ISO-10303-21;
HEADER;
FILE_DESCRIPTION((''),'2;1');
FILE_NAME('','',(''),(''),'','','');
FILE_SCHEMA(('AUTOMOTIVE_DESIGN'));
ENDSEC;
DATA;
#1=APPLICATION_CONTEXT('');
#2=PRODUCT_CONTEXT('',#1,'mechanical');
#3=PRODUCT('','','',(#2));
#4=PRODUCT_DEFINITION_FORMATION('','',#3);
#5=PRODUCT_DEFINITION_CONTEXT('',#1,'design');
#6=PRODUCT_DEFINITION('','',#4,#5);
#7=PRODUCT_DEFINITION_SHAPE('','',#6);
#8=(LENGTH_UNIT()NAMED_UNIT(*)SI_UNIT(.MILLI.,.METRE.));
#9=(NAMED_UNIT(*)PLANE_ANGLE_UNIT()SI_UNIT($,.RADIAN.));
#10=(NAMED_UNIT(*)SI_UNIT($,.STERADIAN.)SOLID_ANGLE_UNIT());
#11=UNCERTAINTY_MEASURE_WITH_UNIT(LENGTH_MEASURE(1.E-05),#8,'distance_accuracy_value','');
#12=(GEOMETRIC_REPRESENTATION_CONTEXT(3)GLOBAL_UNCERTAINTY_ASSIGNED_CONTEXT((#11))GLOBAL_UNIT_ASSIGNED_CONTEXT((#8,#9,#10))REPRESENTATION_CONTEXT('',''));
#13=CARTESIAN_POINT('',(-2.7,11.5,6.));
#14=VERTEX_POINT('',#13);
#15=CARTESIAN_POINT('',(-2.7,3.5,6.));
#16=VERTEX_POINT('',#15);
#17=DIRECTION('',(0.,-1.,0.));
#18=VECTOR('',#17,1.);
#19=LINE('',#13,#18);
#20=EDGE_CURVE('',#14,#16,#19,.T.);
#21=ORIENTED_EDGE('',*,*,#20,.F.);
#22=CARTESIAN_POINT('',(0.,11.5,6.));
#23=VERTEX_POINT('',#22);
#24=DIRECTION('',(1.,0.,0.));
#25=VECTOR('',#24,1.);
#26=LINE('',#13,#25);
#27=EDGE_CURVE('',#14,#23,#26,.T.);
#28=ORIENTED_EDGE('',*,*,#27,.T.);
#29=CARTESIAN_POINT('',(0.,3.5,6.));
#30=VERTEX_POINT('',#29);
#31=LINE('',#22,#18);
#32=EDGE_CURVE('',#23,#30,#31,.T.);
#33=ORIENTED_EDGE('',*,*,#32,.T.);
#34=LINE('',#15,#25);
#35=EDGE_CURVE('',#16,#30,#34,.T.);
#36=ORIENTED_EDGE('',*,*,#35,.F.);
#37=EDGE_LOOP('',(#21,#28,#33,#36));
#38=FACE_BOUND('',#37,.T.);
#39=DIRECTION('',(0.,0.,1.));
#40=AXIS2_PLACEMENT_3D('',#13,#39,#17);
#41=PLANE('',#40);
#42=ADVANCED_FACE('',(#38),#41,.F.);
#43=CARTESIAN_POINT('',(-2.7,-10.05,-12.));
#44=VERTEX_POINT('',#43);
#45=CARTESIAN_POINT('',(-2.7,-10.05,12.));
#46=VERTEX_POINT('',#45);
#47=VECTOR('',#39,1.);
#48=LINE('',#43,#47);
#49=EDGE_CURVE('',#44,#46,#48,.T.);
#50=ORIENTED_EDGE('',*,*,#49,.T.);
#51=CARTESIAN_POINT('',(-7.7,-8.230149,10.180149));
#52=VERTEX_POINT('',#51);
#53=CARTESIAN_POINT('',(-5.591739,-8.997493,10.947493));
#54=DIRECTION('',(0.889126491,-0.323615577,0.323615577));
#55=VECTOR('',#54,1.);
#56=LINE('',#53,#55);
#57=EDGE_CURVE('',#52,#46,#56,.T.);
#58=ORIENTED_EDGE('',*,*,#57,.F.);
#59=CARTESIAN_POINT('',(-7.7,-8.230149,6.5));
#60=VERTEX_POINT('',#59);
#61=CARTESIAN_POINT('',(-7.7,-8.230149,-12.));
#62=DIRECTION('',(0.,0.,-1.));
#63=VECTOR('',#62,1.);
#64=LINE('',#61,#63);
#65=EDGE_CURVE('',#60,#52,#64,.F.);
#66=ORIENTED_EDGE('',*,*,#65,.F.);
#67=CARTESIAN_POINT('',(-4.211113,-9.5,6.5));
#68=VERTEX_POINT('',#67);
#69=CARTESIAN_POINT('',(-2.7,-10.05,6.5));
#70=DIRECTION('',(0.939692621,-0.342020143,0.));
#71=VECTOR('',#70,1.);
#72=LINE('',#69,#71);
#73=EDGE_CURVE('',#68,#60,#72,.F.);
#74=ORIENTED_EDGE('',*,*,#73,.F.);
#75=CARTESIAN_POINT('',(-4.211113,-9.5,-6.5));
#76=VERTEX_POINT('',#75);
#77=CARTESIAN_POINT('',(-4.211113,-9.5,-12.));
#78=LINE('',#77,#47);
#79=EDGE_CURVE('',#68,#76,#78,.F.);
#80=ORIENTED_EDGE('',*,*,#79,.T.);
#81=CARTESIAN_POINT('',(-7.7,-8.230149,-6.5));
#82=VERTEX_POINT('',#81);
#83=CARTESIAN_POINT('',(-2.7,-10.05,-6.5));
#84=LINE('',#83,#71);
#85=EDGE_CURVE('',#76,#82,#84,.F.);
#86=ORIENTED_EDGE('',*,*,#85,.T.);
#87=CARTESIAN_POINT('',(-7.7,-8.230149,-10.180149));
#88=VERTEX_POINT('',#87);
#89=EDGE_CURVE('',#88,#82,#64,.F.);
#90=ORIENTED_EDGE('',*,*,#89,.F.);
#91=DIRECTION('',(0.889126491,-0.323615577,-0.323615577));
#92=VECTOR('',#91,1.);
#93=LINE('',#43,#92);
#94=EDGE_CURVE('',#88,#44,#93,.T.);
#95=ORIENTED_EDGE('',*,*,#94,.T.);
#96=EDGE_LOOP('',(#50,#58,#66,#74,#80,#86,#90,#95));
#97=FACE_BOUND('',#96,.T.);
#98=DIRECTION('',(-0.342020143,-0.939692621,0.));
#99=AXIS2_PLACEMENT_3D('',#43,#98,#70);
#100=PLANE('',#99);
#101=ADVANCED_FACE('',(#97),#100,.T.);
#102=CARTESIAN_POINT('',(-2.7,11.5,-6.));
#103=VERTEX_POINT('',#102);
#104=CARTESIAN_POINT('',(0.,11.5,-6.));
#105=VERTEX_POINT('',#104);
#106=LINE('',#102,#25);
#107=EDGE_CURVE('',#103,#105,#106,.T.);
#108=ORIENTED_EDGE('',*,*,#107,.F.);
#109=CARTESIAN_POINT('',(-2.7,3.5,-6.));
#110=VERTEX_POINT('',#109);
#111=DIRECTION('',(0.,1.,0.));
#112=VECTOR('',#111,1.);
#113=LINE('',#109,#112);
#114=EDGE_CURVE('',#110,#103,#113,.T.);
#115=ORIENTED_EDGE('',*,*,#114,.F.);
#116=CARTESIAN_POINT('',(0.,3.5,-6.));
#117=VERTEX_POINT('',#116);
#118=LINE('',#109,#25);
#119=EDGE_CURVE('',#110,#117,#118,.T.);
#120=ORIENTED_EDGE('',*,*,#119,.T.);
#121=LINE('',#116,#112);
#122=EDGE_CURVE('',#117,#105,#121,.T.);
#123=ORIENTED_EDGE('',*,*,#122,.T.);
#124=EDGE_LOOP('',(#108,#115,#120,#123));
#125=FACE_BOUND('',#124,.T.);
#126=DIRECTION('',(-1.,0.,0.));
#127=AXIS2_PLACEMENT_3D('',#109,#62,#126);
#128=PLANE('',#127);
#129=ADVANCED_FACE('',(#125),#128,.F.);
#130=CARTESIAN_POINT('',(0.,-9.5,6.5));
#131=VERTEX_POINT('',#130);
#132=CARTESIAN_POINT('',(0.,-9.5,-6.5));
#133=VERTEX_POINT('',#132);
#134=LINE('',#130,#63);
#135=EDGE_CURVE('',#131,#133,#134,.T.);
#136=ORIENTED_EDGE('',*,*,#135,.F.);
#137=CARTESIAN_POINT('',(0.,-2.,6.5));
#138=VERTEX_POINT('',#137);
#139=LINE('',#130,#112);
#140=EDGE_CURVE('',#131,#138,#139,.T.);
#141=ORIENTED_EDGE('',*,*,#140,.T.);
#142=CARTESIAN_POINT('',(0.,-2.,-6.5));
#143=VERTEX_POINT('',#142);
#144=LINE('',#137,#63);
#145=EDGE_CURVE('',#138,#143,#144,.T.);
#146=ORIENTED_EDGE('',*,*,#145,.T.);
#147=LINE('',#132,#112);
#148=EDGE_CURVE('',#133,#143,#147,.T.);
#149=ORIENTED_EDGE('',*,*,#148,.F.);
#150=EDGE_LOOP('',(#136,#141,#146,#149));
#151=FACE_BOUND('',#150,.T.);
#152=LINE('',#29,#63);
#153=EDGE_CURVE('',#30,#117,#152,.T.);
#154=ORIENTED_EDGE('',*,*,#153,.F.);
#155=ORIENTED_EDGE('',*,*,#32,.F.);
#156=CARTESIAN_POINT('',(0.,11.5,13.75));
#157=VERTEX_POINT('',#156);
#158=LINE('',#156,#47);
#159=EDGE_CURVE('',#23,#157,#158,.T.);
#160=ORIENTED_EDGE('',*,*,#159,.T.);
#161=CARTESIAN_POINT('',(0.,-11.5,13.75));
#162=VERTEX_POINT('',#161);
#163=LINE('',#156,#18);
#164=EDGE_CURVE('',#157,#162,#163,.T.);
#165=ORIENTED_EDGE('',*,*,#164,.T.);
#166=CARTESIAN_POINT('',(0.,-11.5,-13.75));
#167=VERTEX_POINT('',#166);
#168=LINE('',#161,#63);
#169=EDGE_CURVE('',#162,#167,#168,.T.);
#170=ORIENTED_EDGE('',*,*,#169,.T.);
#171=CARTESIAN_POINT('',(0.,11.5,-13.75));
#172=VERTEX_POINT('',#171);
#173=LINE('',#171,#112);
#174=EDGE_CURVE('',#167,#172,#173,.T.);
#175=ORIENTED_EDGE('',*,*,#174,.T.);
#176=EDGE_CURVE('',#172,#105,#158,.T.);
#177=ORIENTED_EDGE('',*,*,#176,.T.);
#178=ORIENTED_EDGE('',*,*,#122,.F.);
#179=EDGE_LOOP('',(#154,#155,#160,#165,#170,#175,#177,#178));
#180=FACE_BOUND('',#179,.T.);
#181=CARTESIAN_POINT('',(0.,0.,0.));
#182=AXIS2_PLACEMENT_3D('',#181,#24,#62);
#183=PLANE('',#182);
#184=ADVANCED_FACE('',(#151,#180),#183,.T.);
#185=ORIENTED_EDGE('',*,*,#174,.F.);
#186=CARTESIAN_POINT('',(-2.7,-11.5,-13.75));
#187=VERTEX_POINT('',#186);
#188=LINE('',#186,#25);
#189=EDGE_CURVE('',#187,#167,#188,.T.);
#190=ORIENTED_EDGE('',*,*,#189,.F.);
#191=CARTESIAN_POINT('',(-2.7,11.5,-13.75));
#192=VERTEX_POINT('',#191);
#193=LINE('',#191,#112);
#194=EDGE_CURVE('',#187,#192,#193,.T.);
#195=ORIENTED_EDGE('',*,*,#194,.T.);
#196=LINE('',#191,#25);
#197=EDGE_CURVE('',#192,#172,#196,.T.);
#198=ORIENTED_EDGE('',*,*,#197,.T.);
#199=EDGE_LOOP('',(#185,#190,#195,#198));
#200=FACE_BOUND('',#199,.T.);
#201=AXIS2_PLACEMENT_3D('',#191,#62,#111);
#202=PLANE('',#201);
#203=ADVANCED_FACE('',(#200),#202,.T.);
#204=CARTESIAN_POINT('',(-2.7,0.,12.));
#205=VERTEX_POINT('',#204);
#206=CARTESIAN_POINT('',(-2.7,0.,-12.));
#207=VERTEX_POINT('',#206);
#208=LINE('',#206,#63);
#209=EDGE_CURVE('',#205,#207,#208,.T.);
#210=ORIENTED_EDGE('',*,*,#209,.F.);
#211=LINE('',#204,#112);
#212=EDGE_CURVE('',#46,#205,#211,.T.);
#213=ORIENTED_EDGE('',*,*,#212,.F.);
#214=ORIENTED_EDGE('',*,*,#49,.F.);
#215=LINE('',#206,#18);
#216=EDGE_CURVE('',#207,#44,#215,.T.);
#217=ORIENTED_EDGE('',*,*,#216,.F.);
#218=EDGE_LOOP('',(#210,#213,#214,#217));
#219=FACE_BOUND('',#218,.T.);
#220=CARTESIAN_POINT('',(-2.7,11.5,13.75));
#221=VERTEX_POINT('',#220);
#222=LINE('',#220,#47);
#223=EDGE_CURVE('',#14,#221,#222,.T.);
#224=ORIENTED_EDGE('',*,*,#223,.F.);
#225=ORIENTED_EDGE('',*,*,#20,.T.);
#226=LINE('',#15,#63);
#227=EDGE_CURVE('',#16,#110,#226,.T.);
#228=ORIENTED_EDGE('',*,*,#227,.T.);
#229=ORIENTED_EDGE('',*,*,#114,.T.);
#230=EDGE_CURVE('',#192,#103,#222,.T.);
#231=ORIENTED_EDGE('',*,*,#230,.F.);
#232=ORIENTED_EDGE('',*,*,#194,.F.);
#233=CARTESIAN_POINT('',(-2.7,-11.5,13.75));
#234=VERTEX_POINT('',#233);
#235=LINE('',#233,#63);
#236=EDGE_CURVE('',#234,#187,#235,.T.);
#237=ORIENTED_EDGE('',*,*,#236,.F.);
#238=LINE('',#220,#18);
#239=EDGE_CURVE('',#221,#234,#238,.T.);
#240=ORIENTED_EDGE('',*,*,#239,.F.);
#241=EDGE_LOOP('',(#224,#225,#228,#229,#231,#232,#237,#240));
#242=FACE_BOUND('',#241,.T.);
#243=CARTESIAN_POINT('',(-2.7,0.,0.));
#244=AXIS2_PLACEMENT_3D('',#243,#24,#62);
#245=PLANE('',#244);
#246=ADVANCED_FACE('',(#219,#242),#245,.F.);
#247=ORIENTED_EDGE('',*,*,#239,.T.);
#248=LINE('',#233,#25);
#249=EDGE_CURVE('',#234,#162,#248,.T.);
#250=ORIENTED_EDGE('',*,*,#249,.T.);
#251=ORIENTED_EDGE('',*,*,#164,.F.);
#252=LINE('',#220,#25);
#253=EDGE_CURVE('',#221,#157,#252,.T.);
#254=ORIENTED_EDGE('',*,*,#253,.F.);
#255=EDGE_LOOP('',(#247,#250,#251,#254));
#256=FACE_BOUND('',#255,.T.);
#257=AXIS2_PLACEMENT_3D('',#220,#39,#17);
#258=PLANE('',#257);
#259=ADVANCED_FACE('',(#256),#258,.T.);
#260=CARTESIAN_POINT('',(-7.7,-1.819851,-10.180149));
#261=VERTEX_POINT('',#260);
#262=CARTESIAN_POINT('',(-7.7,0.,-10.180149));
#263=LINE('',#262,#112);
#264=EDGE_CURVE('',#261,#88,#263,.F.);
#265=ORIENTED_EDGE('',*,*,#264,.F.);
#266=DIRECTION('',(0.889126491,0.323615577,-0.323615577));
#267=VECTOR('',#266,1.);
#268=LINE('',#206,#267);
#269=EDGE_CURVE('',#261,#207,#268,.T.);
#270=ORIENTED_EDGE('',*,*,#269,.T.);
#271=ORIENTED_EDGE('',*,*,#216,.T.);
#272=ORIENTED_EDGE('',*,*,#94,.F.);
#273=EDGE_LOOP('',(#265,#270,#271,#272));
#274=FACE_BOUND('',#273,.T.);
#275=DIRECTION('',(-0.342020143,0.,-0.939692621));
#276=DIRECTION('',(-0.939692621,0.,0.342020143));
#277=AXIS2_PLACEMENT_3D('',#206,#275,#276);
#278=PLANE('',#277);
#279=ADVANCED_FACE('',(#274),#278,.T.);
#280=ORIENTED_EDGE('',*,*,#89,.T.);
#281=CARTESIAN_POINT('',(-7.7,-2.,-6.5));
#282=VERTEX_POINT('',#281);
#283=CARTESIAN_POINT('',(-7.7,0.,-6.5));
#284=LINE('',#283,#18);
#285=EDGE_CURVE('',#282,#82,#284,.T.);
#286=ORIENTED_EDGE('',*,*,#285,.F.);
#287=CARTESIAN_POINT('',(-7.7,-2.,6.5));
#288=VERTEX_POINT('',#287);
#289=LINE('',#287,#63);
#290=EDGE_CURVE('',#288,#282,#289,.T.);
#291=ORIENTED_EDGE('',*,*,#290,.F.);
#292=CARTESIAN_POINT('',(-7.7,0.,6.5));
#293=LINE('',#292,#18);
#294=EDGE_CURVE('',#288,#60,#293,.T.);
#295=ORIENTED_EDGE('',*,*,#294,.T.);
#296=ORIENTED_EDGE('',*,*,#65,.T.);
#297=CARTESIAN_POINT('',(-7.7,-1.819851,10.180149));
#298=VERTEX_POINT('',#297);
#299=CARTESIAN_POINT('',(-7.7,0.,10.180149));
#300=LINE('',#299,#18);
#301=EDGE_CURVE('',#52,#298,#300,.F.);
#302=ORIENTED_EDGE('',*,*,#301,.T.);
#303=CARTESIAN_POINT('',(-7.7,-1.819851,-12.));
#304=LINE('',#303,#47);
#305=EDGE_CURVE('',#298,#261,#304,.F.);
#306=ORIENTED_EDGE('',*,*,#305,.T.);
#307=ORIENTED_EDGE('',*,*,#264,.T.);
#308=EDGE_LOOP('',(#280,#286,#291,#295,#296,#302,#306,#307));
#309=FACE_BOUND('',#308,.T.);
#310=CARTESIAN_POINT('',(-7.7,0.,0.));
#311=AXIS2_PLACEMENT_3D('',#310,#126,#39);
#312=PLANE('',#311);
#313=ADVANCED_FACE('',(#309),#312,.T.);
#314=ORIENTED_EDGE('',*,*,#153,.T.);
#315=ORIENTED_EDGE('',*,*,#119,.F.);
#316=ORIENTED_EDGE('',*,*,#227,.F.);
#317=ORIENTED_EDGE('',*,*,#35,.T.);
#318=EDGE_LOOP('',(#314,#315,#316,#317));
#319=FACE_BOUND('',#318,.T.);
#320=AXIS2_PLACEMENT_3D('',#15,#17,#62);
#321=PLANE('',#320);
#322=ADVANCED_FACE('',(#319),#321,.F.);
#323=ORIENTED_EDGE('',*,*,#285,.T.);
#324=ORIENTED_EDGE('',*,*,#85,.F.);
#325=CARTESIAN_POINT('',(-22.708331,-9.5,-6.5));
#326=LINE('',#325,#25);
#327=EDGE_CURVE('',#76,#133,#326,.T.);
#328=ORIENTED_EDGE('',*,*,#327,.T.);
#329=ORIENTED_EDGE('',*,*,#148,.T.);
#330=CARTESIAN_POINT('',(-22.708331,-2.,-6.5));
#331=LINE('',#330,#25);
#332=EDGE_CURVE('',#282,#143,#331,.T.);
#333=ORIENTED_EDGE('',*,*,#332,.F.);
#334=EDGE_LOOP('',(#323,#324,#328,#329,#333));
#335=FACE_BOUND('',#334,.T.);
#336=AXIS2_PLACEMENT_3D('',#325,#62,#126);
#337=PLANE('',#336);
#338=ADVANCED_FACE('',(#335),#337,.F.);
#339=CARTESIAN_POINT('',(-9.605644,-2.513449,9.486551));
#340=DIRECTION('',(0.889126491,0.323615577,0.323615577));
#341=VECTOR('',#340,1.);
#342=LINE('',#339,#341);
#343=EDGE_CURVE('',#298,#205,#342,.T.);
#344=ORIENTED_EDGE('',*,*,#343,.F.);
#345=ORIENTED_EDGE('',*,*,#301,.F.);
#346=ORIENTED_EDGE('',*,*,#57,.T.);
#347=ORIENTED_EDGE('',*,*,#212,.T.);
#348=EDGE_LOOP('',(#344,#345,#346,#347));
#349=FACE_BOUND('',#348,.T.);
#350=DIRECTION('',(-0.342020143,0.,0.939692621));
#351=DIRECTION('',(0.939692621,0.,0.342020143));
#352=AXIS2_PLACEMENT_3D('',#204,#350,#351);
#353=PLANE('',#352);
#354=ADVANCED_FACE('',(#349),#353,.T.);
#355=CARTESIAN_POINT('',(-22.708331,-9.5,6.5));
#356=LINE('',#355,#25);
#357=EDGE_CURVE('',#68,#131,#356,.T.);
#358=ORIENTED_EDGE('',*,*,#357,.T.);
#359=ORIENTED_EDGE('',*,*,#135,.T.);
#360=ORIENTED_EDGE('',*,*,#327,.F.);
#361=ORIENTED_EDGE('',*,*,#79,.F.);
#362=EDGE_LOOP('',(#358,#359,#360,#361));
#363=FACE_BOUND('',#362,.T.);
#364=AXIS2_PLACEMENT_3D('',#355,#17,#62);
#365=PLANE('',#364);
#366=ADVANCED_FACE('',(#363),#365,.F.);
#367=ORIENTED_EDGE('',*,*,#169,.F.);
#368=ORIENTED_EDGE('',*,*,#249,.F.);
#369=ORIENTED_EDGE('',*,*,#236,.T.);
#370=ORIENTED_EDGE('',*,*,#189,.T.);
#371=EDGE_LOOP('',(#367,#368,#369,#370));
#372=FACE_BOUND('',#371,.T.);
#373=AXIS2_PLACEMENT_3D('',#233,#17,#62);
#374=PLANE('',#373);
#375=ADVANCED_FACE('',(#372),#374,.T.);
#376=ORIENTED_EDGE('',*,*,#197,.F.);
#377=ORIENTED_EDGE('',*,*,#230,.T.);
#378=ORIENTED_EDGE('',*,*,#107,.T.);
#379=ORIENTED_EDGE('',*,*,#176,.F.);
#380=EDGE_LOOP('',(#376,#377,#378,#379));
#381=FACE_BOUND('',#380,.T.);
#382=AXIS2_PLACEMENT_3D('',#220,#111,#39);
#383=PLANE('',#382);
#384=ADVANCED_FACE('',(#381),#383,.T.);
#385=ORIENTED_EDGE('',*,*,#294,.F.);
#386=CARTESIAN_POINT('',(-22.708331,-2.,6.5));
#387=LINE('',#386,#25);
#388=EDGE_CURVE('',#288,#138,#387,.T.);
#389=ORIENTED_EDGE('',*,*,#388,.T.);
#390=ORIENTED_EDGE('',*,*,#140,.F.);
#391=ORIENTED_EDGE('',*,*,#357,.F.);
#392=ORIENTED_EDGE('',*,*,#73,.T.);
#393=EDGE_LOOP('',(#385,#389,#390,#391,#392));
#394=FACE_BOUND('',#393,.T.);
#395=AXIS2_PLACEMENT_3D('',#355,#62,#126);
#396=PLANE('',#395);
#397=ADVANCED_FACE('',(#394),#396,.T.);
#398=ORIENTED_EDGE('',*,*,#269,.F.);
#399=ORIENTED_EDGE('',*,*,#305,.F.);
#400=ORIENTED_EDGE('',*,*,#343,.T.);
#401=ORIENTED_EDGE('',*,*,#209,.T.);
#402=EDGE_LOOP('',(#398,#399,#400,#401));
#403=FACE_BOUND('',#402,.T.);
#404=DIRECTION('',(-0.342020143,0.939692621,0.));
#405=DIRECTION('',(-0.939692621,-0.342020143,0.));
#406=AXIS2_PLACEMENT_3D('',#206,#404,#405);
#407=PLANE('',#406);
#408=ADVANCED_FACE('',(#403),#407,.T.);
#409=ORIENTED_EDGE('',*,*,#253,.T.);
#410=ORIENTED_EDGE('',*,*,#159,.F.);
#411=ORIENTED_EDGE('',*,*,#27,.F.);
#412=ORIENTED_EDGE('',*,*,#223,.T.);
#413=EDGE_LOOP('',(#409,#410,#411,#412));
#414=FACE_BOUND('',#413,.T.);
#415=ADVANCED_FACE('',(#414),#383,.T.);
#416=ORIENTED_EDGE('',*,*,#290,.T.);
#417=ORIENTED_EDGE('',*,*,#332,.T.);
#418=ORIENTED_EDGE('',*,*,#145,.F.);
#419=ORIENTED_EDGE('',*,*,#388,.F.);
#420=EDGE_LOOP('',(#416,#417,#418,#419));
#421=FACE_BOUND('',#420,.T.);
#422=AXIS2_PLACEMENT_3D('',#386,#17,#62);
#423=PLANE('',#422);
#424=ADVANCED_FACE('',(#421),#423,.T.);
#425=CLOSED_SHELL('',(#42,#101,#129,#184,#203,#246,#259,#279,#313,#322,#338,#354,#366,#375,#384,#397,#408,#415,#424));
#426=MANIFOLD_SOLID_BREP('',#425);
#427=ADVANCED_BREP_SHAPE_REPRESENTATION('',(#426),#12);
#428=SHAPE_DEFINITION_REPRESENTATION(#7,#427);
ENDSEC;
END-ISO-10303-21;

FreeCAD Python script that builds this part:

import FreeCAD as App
import Part
import Sketcher

V = App.Vector
Q = App.Units.Quantity

doc = App.newDocument("Part")
params = doc.addObject("Spreadsheet::Sheet", "Params")
for row, (alias, value) in enumerate([
    ("sketch1_width", "23 mm"),
    ("sketch1_height", "27.5 mm"),
    ("pad1_length", "2.7 mm"),
    ("sketch2_width", "8 mm"),
    ("sketch2_height", "12 mm"),
    ("sketch3_height", "24 mm"),
    ("sketch3_width", "10.05 mm"),
    ("pad2_length", "5 mm"),
    ("pad2_taper", "-20 deg"),
    ("sketch4_height", "13 mm"),
    ("sketch4_width", "7.5 mm"),
    ("pocket2_length", "7.7 mm"),
], start=1):
    params.set(f"A{row}", alias)
    params.set(f"B{row}", "=" + value)
    params.setAlias(f"B{row}", alias)

body = doc.addObject("PartDesign::Body", "Body")

# Sketch on YZ plane
sketch1 = body.newObject("Sketcher::SketchObject", "Sketch")
sketch1.AttachmentSupport = (doc.getObject("YZ_Plane"), [""])
sketch1.MapMode = "FlatFace"
sketch1.addGeometry([
    Part.LineSegment(V(12, 14, 0), V(-12, 14, 0)),
    Part.LineSegment(V(-12, 14, 0), V(-12, -14, 0)),
    Part.LineSegment(V(-12, -14, 0), V(12, -14, 0)),
    Part.LineSegment(V(12, -14, 0), V(12, 14, 0)),
], False)
sketch1.addConstraint([
    Sketcher.Constraint("Coincident", 0, 2, 1, 1),
    Sketcher.Constraint("Coincident", 1, 2, 2, 1),
    Sketcher.Constraint("Coincident", 2, 2, 3, 1),
    Sketcher.Constraint("Coincident", 3, 2, 0, 1),
    Sketcher.Constraint("Horizontal", 0),
    Sketcher.Constraint("Vertical", 1),
    Sketcher.Constraint("Horizontal", 2),
    Sketcher.Constraint("Vertical", 3),
    Sketcher.Constraint("Symmetric", 0, 2, 2, 2, -1, 1),
    Sketcher.Constraint("DistanceX", 0, 2, 0, 1, Q("23 mm")),
    Sketcher.Constraint("DistanceY", 1, 2, 1, 1, Q("27.5 mm")),
])
sketch1.setExpression("Constraints[9]", "Params.sketch1_width")
sketch1.setExpression("Constraints[10]", "Params.sketch1_height")
pad1 = body.newObject("PartDesign::Pad", "Pad")
pad1.Profile = sketch1
pad1.setExpression("Length", "Params.pad1_length")
pad1.Reversed = True

# Sketch on YZ plane
sketch2 = body.newObject("Sketcher::SketchObject", "Sketch001")
sketch2.AttachmentSupport = (doc.getObject("YZ_Plane"), [""])
sketch2.MapMode = "FlatFace"
sketch2.addGeometry([
    Part.LineSegment(V(12, 6, 0), V(4, 6, 0)),
    Part.LineSegment(V(4, 6, 0), V(4, -6, 0)),
    Part.LineSegment(V(4, -6, 0), V(12, -6, 0)),
    Part.LineSegment(V(12, -6, 0), V(12, 6, 0)),
], False)
sketch2.addConstraint([
    Sketcher.Constraint("Coincident", 0, 2, 1, 1),
    Sketcher.Constraint("Coincident", 1, 2, 2, 1),
    Sketcher.Constraint("Coincident", 2, 2, 3, 1),
    Sketcher.Constraint("Coincident", 3, 2, 0, 1),
    Sketcher.Constraint("Horizontal", 0),
    Sketcher.Constraint("Vertical", 1),
    Sketcher.Constraint("Horizontal", 2),
    Sketcher.Constraint("Vertical", 3),
    Sketcher.Constraint("DistanceX", 0, 2, 0, 1, Q("8 mm")),
    Sketcher.Constraint("DistanceY", 1, 2, 1, 1, Q("12 mm")),
    Sketcher.Constraint("DistanceY", -1, 1, 0, 2, Q("6 mm")),
    Sketcher.Constraint("DistanceX", -1, 1, 0, 2, Q("3.5 mm")),
])
sketch2.setExpression("Constraints[8]", "Params.sketch2_width")
sketch2.setExpression("Constraints[9]", "Params.sketch2_height")
pocket1 = body.newObject("PartDesign::Pocket", "Pocket")
pocket1.Profile = sketch2
pocket1.Type = "ThroughAll"

# Sketch on YZ plane
sketch3 = body.newObject("Sketcher::SketchObject", "Sketch002")
sketch3.AttachmentSupport = (doc.getObject("YZ_Plane"), [""])
sketch3.MapMode = "FlatFace"
sketch3.AttachmentOffset = App.Placement(V(0, 0, -2.7), App.Rotation())
sketch3.addGeometry([
    Part.LineSegment(V(0, -12, 0), V(-10, -12, 0)),
    Part.LineSegment(V(-10, -12, 0), V(-10, 12, 0)),
    Part.LineSegment(V(-10, 12, 0), V(0, 12, 0)),
    Part.LineSegment(V(0, 12, 0), V(0, -12, 0)),
], False)
sketch3.addConstraint([
    Sketcher.Constraint("Coincident", 0, 2, 1, 1),
    Sketcher.Constraint("Coincident", 1, 2, 2, 1),
    Sketcher.Constraint("Coincident", 2, 2, 3, 1),
    Sketcher.Constraint("Coincident", 3, 2, 0, 1),
    Sketcher.Constraint("Horizontal", 0),
    Sketcher.Constraint("Vertical", 1),
    Sketcher.Constraint("Horizontal", 2),
    Sketcher.Constraint("Vertical", 3),
    Sketcher.Constraint("Symmetric", 2, 2, 3, 2, -1, 1),
    Sketcher.Constraint("DistanceY", 1, 1, 1, 2, Q("24 mm")),
    Sketcher.Constraint("DistanceX", 0, 2, 0, 1, Q("10.05 mm")),
])
sketch3.setExpression("Constraints[9]", "Params.sketch3_height")
sketch3.setExpression("Constraints[10]", "Params.sketch3_width")
pad2 = body.newObject("PartDesign::Pad", "Pad001")
pad2.Profile = sketch3
pad2.setExpression("Length", "Params.pad2_length")
pad2.Reversed = True
pad2.setExpression("TaperAngle", "Params.pad2_taper")

# Sketch on YZ plane
sketch4 = body.newObject("Sketcher::SketchObject", "Sketch003")
sketch4.AttachmentSupport = (doc.getObject("YZ_Plane"), [""])
sketch4.MapMode = "FlatFace"
sketch4.addGeometry([
    Part.LineSegment(V(-2, 6, 0), V(-10, 6, 0)),
    Part.LineSegment(V(-10, 6, 0), V(-10, -6, 0)),
    Part.LineSegment(V(-10, -6, 0), V(-2, -6, 0)),
    Part.LineSegment(V(-2, -6, 0), V(-2, 6, 0)),
], False)
sketch4.addConstraint([
    Sketcher.Constraint("Coincident", 0, 2, 1, 1),
    Sketcher.Constraint("Coincident", 1, 2, 2, 1),
    Sketcher.Constraint("Coincident", 2, 2, 3, 1),
    Sketcher.Constraint("Coincident", 3, 2, 0, 1),
    Sketcher.Constraint("Horizontal", 0),
    Sketcher.Constraint("Vertical", 1),
    Sketcher.Constraint("Horizontal", 2),
    Sketcher.Constraint("Vertical", 3),
    Sketcher.Constraint("DistanceY", 1, 2, 1, 1, Q("13 mm")),
    Sketcher.Constraint("DistanceX", 0, 2, 0, 1, Q("7.5 mm")),
    Sketcher.Constraint("DistanceX", 2, 2, -1, 1, Q("2 mm")),
    Sketcher.Constraint("DistanceY", -1, 1, 0, 2, Q("6.5 mm")),
])
sketch4.setExpression("Constraints[8]", "Params.sketch4_height")
sketch4.setExpression("Constraints[9]", "Params.sketch4_width")
pocket2 = body.newObject("PartDesign::Pocket", "Pocket001")
pocket2.Profile = sketch4
pocket2.setExpression("Length", "Params.pocket2_length")

doc.recompute()
